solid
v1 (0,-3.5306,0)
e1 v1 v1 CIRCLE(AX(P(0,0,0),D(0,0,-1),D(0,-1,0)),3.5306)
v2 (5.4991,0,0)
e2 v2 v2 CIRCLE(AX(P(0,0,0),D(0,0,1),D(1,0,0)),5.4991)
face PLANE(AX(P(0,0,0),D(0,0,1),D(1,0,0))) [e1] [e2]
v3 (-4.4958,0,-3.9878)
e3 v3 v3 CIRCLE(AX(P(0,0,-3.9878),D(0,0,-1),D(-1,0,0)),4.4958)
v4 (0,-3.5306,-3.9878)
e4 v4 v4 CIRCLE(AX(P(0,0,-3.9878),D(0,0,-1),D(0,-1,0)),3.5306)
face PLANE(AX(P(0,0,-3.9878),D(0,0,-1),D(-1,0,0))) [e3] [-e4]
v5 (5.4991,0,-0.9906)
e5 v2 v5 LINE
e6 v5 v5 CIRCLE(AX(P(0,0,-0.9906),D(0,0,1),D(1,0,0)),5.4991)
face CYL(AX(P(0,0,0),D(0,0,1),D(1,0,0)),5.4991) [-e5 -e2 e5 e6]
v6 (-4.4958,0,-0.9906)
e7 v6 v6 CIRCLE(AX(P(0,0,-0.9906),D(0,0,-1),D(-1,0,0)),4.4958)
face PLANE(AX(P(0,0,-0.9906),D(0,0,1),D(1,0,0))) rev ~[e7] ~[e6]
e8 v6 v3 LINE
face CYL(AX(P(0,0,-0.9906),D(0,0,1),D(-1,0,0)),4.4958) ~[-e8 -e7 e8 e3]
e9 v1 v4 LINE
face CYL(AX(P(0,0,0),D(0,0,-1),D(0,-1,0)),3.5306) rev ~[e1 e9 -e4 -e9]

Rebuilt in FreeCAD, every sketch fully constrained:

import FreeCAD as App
import Part
import Sketcher
from FreeCAD import Vector
Q = App.Units.Quantity

doc = App.newDocument("Part")
body = doc.addObject("PartDesign::Body", "Body")

# Sketch on XY plane
sketch1 = doc.addObject("Sketcher::SketchObject", "Sketch")
body.addObject(sketch1)
sketch1.AttachmentSupport = (doc.XY_Plane, [""])
sketch1.MapMode = "FlatFace"
sketch1.addGeometry(Part.Circle(Vector(0, 0, 0), Vector(0, 0, 1), 5), False)
sketch1.addConstraint([
    Sketcher.Constraint("Coincident", 0, 3, -1, 1),
    Sketcher.Constraint("Diameter", 0, Q("0.433 in")),
])
pad1 = doc.addObject("PartDesign::Pad", "Pad")
body.addObject(pad1)
pad1.Profile = sketch1
pad1.Length = Q("0.039 in")
pad1.Reversed = True

# Sketch on XY plane
sketch2 = doc.addObject("Sketcher::SketchObject", "Sketch001")
body.addObject(sketch2)
sketch2.AttachmentSupport = (doc.XY_Plane, [""])
sketch2.MapMode = "FlatFace"
sketch2.AttachmentOffset = App.Placement(Vector(0, 0, -0.039 * 25.4), App.Rotation())
sketch2.addGeometry(Part.Circle(Vector(0, 0, 0), Vector(0, 0, 1), 4.5), False)
sketch2.addConstraint([
    Sketcher.Constraint("Coincident", 0, 3, -1, 1),
    Sketcher.Constraint("Diameter", 0, Q("0.354 in")),
])
pad2 = doc.addObject("PartDesign::Pad", "Pad001")
body.addObject(pad2)
pad2.Profile = sketch2
pad2.Length = Q("0.118 in")
pad2.Reversed = True

# Sketch on XY plane
sketch3 = doc.addObject("Sketcher::SketchObject", "Sketch002")
body.addObject(sketch3)
sketch3.AttachmentSupport = (doc.XY_Plane, [""])
sketch3.MapMode = "FlatFace"
sketch3.addGeometry(Part.Circle(Vector(0, 0, 0), Vector(0, 0, 1), 3.5), False)
sketch3.addConstraint([
    Sketcher.Constraint("Coincident", 0, 3, -1, 1),
    Sketcher.Constraint("Diameter", 0, Q("0.278 in")),
])
doc.recompute()
hole = doc.addObject("PartDesign::Hole", "Hole")
body.addObject(hole)
hole.Profile = sketch3
hole.ThreadType = "None"
hole.Diameter = Q("0.278 in")
hole.DepthType = "ThroughAll"

doc.recompute()
